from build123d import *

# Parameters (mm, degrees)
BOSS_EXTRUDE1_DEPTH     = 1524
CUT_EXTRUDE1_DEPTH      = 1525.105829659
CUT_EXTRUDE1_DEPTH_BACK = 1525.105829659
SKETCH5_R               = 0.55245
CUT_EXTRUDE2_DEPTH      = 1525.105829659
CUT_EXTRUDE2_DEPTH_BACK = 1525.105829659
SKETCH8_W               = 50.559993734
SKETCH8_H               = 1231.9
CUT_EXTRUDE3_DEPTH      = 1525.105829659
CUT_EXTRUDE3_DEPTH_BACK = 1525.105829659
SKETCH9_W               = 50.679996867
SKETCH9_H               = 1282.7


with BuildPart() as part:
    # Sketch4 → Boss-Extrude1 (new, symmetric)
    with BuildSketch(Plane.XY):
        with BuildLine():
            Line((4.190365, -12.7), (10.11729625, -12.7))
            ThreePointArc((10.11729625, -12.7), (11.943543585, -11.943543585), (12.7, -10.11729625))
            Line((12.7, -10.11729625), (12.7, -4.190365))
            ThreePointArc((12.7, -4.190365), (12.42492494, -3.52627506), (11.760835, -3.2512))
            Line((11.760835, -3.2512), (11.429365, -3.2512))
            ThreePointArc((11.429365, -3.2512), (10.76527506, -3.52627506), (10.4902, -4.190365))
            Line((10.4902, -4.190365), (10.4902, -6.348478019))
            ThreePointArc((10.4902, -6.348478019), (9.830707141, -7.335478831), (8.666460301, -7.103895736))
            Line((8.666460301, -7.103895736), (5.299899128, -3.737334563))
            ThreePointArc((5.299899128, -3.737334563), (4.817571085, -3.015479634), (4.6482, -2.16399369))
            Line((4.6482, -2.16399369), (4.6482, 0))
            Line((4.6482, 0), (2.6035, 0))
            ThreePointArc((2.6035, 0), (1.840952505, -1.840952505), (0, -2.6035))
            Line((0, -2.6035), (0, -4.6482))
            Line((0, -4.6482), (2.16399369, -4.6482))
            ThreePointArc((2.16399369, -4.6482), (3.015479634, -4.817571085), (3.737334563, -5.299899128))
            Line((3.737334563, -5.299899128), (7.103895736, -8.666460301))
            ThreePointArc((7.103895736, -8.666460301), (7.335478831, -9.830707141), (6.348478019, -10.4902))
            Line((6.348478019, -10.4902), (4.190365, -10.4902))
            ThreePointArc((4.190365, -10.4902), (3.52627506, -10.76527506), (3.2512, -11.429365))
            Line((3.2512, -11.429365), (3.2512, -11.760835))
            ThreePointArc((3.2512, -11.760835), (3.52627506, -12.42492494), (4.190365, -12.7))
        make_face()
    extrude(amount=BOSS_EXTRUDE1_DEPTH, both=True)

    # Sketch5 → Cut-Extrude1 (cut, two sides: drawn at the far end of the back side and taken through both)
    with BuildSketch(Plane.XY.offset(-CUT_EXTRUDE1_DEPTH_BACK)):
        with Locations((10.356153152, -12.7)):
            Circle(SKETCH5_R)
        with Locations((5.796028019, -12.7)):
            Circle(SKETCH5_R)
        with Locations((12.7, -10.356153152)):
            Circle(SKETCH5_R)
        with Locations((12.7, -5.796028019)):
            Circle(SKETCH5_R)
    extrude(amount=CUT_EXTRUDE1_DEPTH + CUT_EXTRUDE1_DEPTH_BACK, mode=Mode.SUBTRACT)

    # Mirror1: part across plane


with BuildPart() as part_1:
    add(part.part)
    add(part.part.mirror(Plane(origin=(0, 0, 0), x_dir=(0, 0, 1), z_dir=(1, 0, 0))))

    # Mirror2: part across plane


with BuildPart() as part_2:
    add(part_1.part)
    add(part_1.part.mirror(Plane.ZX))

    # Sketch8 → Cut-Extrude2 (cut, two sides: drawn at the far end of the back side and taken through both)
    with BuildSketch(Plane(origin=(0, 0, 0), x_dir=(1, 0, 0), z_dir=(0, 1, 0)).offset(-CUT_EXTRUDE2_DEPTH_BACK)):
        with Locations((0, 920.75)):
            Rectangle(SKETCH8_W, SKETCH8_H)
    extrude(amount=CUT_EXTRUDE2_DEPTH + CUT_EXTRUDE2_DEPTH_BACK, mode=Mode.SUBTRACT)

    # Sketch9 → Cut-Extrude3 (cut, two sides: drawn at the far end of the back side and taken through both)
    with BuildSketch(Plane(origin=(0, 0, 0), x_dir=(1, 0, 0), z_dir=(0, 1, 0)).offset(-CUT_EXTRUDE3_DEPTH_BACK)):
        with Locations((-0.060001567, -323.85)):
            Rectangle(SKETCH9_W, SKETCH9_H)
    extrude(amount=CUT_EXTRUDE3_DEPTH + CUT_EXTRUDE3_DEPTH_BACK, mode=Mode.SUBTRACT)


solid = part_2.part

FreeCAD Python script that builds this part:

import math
import FreeCAD as App
import Part
import Sketcher

V = App.Vector
Q = App.Units.Quantity


def add_polygon(sketch, points):
    """Adds a closed chain of lines whose ends are joined by coincident constraints."""
    first, n = sketch.GeometryCount, len(points)
    for a, b in zip(points, points[1:] + points[:1]):
        sketch.addGeometry(Part.LineSegment(App.Vector(*a, 0), App.Vector(*b, 0)), False)
    for i in range(n):
        sketch.addConstraint(Sketcher.Constraint("Coincident", first + i, 2, first + (i + 1) % n, 1))

doc = App.newDocument("Part")
params = doc.addObject("Spreadsheet::Sheet", "Params")
for row, (alias, value) in enumerate([
    ("pad1_length", "120 in"),
    ("sketch3_height", "48.5 in"),
    ("sketch4_height", "50.5 in"),
], start=1):
    params.set(f"A{row}", alias)
    params.set(f"B{row}", "=" + value)
    params.setAlias(f"B{row}", alias)

body = doc.addObject("PartDesign::Body", "Body")

sketch1 = body.newObject("Sketcher::SketchObject", "Sketch")
sketch1.AttachmentSupport = (doc.getObject("XY_Plane"), [""])
sketch1.MapMode = "FlatFace"
sketch1.addGeometry([
    Part.LineSegment(V(4.19, -12.7, 0), V(10.12, -12.7, 0)),
    Part.ArcOfCircle(Part.Circle(V(10.12, -10.12, 0), V(0, 0, 1), 2.58), math.radians(-90), math.radians(0)),
    Part.LineSegment(V(12.7, -10.12, 0), V(12.7, -4.19, 0)),
    Part.ArcOfCircle(Part.Circle(V(11.76, -4.19, 0), V(0, 0, 1), 0.94), math.radians(0), math.radians(90)),
    Part.LineSegment(V(11.76, -3.25, 0), V(11.43, -3.25, 0)),
    Part.ArcOfCircle(Part.Circle(V(11.43, -4.19, 0), V(0, 0, 1), 0.94), math.radians(90), math.radians(180)),
    Part.LineSegment(V(10.49, -4.19, 0), V(10.49, -6.35, 0)),
    Part.ArcOfCircle(Part.Circle(V(9.42, -6.35, 0), V(0, 0, 1), 1.07), math.radians(-135), math.radians(0)),
    Part.LineSegment(V(8.67, -7.1, 0), V(5.3, -3.74, 0)),
    Part.ArcOfCircle(Part.Circle(V(6.87, -2.16, 0), V(0, 0, 1), 2.23), math.radians(-180), math.radians(-135)),
    Part.LineSegment(V(4.65, -2.16, 0), V(4.65, 0, 0)),
    Part.LineSegment(V(4.65, 0, 0), V(2.6, 0, 0)),
    Part.ArcOfCircle(Part.Circle(V(0, 0, 0), V(0, 0, 1), 2.6), math.radians(-90), math.radians(0)),
    Part.LineSegment(V(0, -2.6, 0), V(0, -4.65, 0)),
    Part.LineSegment(V(0, -4.65, 0), V(2.16, -4.65, 0)),
    Part.ArcOfCircle(Part.Circle(V(2.16, -6.87, 0), V(0, 0, 1), 2.23), math.radians(45), math.radians(90)),
    Part.LineSegment(V(3.74, -5.3, 0), V(7.1, -8.67, 0)),
    Part.ArcOfCircle(Part.Circle(V(6.35, -9.42, 0), V(0, 0, 1), 1.07), math.radians(-90), math.radians(45)),
    Part.LineSegment(V(6.35, -10.49, 0), V(4.19, -10.49, 0)),
    Part.ArcOfCircle(Part.Circle(V(4.19, -11.43, 0), V(0, 0, 1), 0.94), math.radians(90), math.radians(180)),
    Part.LineSegment(V(3.25, -11.43, 0), V(3.25, -11.76, 0)),
    Part.ArcOfCircle(Part.Circle(V(4.19, -11.76, 0), V(0, 0, 1), 0.94), math.radians(-180), math.radians(-90)),
], False)
sketch1.addConstraint([
    Sketcher.Constraint("Tangent", 0, 2, 1, 1),
    Sketcher.Constraint("Tangent", 1, 2, 2, 1),
    Sketcher.Constraint("Tangent", 2, 2, 3, 1),
    Sketcher.Constraint("Tangent", 3, 2, 4, 1),
    Sketcher.Constraint("Tangent", 4, 2, 5, 1),
    Sketcher.Constraint("Tangent", 5, 2, 6, 1),
    Sketcher.Constraint("Tangent", 6, 2, 7, 2),
    Sketcher.Constraint("Tangent", 7, 1, 8, 1),
    Sketcher.Constraint("Tangent", 8, 2, 9, 2),
    Sketcher.Constraint("Tangent", 9, 1, 10, 1),
    Sketcher.Constraint("Coincident", 10, 2, 11, 1),
    Sketcher.Constraint("Coincident", 11, 2, 12, 2),
    Sketcher.Constraint("Coincident", 12, 1, 13, 1),
    Sketcher.Constraint("Coincident", 13, 2, 14, 1),
    Sketcher.Constraint("Tangent", 14, 2, 15, 2),
    Sketcher.Constraint("Tangent", 15, 1, 16, 1),
    Sketcher.Constraint("Tangent", 16, 2, 17, 2),
    Sketcher.Constraint("Tangent", 17, 1, 18, 1),
    Sketcher.Constraint("Tangent", 18, 2, 19, 1),
    Sketcher.Constraint("Tangent", 19, 2, 20, 1),
    Sketcher.Constraint("Tangent", 20, 2, 21, 1),
    Sketcher.Constraint("Tangent", 21, 2, 0, 1),
    Sketcher.Constraint("Horizontal", 0),
    Sketcher.Constraint("Vertical", 2),
    Sketcher.Constraint("Horizontal", 4),
    Sketcher.Constraint("Vertical", 6),
    Sketcher.Constraint("Vertical", 10),
    Sketcher.Constraint("Horizontal", 11),
    Sketcher.Constraint("Vertical", 13),
    Sketcher.Constraint("Horizontal", 14),
    Sketcher.Constraint("Horizontal", 18),
    Sketcher.Constraint("Vertical", 20),
    Sketcher.Constraint("Coincident", 12, 3, -1, 1),
    Sketcher.Constraint("Equal", 3, 5),
    Sketcher.Constraint("Equal", 9, 15),
    Sketcher.Constraint("Equal", 7, 17),
    Sketcher.Constraint("Equal", 5, 19),
    Sketcher.Constraint("Equal", 19, 21),
    Sketcher.Constraint("PointOnObject", 10, 2, -1),
    Sketcher.Constraint("PointOnObject", 12, 1, -2),
    Sketcher.Constraint("Parallel", 8, 16),
    Sketcher.Constraint("Equal", 0, 2),
    Sketcher.Constraint("Equal", 18, 6),
    Sketcher.Constraint("Equal", 14, 10),
    Sketcher.Constraint("Equal", 11, 13),
    Sketcher.Constraint("Equal", 4, 20),
    Sketcher.Constraint("Equal", 8, 16),
    Sketcher.Constraint("DistanceY", 0, 2, -1, 1, Q("0.5 in")),
    Sketcher.Constraint("Radius", 9, Q("0.0876 in")),
    Sketcher.Constraint("Radius", 12, Q("0.1025 in")),
    Sketcher.Constraint("DistanceX", 9, 1, 5, 2, Q("0.23 in")),
    Sketcher.Constraint("DistanceX", 11, 2, 11, 1, Q("0.0805 in")),
    Sketcher.Constraint("DistanceY", 3, 2, -1, 1, Q("0.128 in")),
    Sketcher.Constraint("Radius", 7, 1.068322),
    Sketcher.Constraint("DistanceX", 17, 3, 7, 3, Q("0.121 in")),
    Sketcher.Constraint("Radius", 1, 2.582704),
    Sketcher.Constraint("Radius", 3, 0.939165),
])
pad1 = body.newObject("PartDesign::Pad", "Pad")
pad1.Profile = sketch1
pad1.setExpression("Length", "Params.pad1_length")
pad1.Midplane = True

sketch2 = body.newObject("Sketcher::SketchObject", "Sketch001")
sketch2.AttachmentSupport = (doc.getObject("XY_Plane"), [""])
sketch2.MapMode = "FlatFace"
sketch2.addGeometry([
    Part.Circle(V(10.4, -12.7, 0), V(0, 0, 1), 0.6),
    Part.Circle(V(5.8, -12.7, 0), V(0, 0, 1), 0.6),
    Part.Circle(V(12.7, -10.4, 0), V(0, 0, 1), 0.6),
    Part.Circle(V(12.7, -5.8, 0), V(0, 0, 1), 0.6),
], False)
sketch2.addConstraint([
    Sketcher.Constraint("Equal", 0, 1),
    Sketcher.Constraint("Equal", 1, 2),
    Sketcher.Constraint("Equal", 2, 3),
    Sketcher.Constraint("Horizontal", 0, 3, 1, 3),
    Sketcher.Constraint("Vertical", 2, 3, 3, 3),
    Sketcher.Constraint("Diameter", 0, Q("0.0435 in")),
    Sketcher.Constraint("DistanceY", 0, 3, -1, 1, Q("0.5 in")),
    Sketcher.Constraint("DistanceX", -1, 1, 2, 3, Q("0.5 in")),
    Sketcher.Constraint("DistanceX", -1, 1, 1, 3, 5.796028),
    Sketcher.Constraint("DistanceY", 3, 3, -1, 1, 5.796028),
    Sketcher.Constraint("DistanceX", -1, 1, 0, 3, 10.356153),
    Sketcher.Constraint("DistanceY", 2, 3, -1, 1, 10.356153),
])
pocket1 = body.newObject("PartDesign::Pocket", "Pocket")
pocket1.Profile = sketch2
pocket1.Type = "ThroughAll"
pocket1.Midplane = True
body2 = doc.addObject("PartDesign::Body", "Body001")
doc.recompute()

body2.BaseFeature = body
doc.recompute()

mirroring = doc.addObject("Part::Mirroring", "Mirroring")
mirroring.Source = body
mirroring.Base = V(0, 0, 0)
mirroring.Normal = V(1, 0, 0)
body3 = doc.addObject("PartDesign::Body", "Body002")
body3.BaseFeature = mirroring
boolean = body2.newObject("PartDesign::Boolean", "Boolean")
boolean.Type = "Fuse"
boolean.addObjects([body3])
doc.recompute()
body4 = doc.addObject("PartDesign::Body", "Body003")
doc.recompute()

body4.BaseFeature = body2
doc.recompute()

mirroring2 = doc.addObject("Part::Mirroring", "Mirroring001")
mirroring2.Source = body2
mirroring2.Base = V(0, 0, 0)
mirroring2.Normal = V(0, 1, 0)
body5 = doc.addObject("PartDesign::Body", "Body004")
body5.BaseFeature = mirroring2
boolean2 = body4.newObject("PartDesign::Boolean", "Boolean001")
boolean2.Type = "Fuse"
boolean2.addObjects([body5])
doc.recompute()

sketch3 = body4.newObject("Sketcher::SketchObject", "Sketch002")
sketch3.AttachmentSupport = (doc.getObject("XZ_Plane003"), [""])
sketch3.MapMode = "FlatFace"
add_polygon(sketch3, [(-25, -1537), (-25, -305), (25, -305), (25, -1537)])
sketch3.addConstraint([
    Sketcher.Constraint("Vertical", 0),
    Sketcher.Constraint("Horizontal", 1),
    Sketcher.Constraint("Vertical", 2),
    Sketcher.Constraint("Horizontal", 3),
    Sketcher.Constraint("DistanceY", 0, 1, 0, 2, Q("48.5 in")),
    Sketcher.Constraint("DistanceY", 0, 2, -1, 1, Q("12 in")),
    Sketcher.Constraint("DistanceX", 1, 1, 1, 2, 50.559994),
    Sketcher.Constraint("DistanceX", 0, 2, -1, 1, 25.279997),
])
sketch3.setExpression("Constraints[8]", "Params.sketch3_height")
pocket2 = body4.newObject("PartDesign::Pocket", "Pocket001")
pocket2.Profile = sketch3
pocket2.Type = "ThroughAll"
pocket2.Midplane = True

sketch4 = body4.newObject("Sketcher::SketchObject", "Sketch003")
sketch4.AttachmentSupport = (doc.getObject("XZ_Plane003"), [""])
sketch4.MapMode = "FlatFace"
add_polygon(sketch4, [(-25, -318), (-25, 965), (25, 965), (25, -318)])
sketch4.addConstraint([
    Sketcher.Constraint("Vertical", 0),
    Sketcher.Constraint("Horizontal", 1),
    Sketcher.Constraint("Vertical", 2),
    Sketcher.Constraint("Horizontal", 3),
    Sketcher.Constraint("DistanceY", 0, 1, 0, 2, Q("50.5 in")),
    Sketcher.Constraint("DistanceX", 0, 2, -1, 1, Q("1 in")),
    Sketcher.Constraint("DistanceY", -1, 1, 0, 2, Q("38 in")),
    Sketcher.Constraint("DistanceX", 1, 1, 1, 2, 50.679997),
])
sketch4.setExpression("Constraints[8]", "Params.sketch4_height")
pocket3 = body4.newObject("PartDesign::Pocket", "Pocket002")
pocket3.Profile = sketch4
pocket3.Type = "ThroughAll"
pocket3.Midplane = True
mirroring.Visibility = False
mirroring2.Visibility = False

doc.recompute()
